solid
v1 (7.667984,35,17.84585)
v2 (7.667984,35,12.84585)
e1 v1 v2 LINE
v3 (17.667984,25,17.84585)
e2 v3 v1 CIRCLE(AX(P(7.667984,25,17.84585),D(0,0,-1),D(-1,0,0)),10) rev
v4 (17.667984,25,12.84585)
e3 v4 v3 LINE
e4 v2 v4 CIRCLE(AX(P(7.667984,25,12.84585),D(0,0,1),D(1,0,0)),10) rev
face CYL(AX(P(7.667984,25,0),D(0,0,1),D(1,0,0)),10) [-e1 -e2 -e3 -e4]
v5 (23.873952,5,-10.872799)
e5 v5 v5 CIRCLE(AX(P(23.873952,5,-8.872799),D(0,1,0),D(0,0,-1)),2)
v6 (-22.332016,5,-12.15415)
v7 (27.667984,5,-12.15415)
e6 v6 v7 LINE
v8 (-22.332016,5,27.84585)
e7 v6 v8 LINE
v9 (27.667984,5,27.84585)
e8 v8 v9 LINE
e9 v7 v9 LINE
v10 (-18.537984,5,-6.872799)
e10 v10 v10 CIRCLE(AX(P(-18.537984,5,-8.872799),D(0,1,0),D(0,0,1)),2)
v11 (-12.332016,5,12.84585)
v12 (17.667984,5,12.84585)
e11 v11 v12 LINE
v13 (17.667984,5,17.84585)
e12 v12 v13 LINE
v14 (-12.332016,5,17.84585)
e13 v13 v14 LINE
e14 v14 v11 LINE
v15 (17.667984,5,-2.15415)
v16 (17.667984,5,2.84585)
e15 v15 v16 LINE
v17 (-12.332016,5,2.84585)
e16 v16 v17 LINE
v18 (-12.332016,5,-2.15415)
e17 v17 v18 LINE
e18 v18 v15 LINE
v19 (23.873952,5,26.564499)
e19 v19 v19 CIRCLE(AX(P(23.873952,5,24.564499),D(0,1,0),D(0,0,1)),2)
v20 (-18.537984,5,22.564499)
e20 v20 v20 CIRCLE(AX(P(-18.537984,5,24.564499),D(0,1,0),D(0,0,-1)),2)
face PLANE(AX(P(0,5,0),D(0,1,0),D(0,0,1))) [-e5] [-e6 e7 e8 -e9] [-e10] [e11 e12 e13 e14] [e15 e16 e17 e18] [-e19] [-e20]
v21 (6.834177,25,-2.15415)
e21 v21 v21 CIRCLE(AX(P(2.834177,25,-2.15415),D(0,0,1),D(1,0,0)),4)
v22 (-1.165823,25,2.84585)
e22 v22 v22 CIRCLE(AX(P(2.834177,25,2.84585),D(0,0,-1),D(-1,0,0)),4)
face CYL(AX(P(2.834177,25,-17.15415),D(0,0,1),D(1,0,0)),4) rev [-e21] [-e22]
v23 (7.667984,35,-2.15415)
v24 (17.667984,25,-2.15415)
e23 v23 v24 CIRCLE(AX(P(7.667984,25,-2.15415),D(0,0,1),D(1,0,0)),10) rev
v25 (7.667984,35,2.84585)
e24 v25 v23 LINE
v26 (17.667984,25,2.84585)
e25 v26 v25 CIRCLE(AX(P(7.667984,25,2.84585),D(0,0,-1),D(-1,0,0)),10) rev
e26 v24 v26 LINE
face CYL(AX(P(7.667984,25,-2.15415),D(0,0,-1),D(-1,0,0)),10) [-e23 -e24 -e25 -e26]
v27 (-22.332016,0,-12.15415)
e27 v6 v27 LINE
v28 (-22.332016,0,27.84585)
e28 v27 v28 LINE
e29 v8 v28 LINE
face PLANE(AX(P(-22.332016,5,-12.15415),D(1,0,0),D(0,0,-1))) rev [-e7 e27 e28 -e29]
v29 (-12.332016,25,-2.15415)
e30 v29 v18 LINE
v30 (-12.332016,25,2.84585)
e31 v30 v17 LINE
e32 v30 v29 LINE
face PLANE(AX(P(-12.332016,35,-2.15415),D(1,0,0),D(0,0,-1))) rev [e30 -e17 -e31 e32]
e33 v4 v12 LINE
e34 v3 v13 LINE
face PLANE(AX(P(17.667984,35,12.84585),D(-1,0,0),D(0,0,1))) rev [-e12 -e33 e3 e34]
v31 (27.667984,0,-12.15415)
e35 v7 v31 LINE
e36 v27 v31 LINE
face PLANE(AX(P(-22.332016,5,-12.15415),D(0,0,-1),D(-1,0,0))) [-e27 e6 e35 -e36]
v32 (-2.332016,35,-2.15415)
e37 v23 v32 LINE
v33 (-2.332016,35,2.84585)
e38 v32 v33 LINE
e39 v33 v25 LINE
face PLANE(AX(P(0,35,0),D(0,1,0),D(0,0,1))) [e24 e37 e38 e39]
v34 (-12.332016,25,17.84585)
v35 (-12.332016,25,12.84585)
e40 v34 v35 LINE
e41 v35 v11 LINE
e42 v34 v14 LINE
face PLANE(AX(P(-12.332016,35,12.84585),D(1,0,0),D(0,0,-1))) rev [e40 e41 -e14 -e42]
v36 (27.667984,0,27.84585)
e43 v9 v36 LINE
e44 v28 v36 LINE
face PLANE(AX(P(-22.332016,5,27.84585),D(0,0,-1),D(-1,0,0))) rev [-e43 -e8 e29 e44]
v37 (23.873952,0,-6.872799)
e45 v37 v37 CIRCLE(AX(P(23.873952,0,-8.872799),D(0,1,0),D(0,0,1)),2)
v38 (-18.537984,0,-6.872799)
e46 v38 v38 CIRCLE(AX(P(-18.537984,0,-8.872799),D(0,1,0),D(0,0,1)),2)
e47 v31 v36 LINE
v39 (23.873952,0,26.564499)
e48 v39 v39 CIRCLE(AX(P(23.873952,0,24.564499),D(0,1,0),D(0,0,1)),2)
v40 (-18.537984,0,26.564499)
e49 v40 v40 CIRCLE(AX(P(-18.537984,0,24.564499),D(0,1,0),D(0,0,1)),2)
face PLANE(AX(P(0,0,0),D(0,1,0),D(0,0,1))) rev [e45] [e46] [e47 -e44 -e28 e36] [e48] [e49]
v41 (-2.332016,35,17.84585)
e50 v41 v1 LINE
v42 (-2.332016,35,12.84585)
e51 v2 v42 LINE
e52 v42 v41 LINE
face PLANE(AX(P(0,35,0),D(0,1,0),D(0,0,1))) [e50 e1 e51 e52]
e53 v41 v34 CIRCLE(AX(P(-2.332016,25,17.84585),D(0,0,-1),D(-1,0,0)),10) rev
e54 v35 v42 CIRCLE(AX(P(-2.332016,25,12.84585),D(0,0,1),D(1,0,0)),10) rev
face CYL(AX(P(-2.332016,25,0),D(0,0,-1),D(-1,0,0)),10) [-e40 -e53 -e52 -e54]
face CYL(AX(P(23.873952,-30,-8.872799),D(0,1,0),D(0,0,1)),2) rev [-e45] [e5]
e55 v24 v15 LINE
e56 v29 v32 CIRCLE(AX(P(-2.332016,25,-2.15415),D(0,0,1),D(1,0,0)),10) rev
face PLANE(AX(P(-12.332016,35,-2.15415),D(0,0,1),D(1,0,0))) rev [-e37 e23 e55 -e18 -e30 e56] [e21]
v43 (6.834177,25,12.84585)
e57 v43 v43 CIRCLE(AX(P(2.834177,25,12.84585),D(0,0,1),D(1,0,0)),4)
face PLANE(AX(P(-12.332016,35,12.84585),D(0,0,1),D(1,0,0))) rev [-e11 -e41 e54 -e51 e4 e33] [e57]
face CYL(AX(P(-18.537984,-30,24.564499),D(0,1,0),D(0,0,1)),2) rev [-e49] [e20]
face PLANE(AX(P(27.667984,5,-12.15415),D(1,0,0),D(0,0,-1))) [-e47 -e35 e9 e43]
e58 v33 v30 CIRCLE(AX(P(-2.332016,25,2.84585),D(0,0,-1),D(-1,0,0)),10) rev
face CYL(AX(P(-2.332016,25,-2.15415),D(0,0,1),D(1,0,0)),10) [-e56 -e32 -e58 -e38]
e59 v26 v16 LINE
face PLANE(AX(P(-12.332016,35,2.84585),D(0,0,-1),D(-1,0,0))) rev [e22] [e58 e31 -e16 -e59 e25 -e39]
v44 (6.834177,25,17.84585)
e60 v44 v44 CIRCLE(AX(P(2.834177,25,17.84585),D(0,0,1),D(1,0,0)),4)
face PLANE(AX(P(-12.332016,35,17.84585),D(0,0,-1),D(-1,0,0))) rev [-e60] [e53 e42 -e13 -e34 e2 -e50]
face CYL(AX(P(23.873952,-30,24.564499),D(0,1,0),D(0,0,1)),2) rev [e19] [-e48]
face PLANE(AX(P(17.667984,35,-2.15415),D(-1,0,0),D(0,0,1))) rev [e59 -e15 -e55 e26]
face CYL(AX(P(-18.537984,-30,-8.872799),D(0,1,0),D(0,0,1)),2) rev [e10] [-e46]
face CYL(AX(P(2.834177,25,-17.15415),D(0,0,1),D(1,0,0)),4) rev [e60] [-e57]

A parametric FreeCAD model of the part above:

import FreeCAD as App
import Part
import Sketcher
Q = App.Units.Quantity


def edges_at(feature, points):
    """Names of the edges that pass closest to the given points."""
    edges = feature.Shape.Edges
    near = lambda p: min(range(len(edges)), key=lambda i: edges[i].distToShape(Part.Vertex(*p))[0])
    return sorted({f"Edge{near(p) + 1}" for p in points})

doc = App.newDocument("Part")
body = doc.addObject("PartDesign::Body", "Body")

# Sketch on XZ plane
sketch1 = body.newObject("Sketcher::SketchObject", "Sketch")
sketch1.AttachmentSupport = (doc.getObject("XZ_Plane"), [""])
sketch1.MapMode = "FlatFace"
sketch1.addGeometry([
    Part.LineSegment(App.Vector(-22, -12, 0), App.Vector(-22, 28, 0)),
    Part.LineSegment(App.Vector(-22, 28, 0), App.Vector(28, 28, 0)),
    Part.LineSegment(App.Vector(28, 28, 0), App.Vector(28, -12, 0)),
    Part.LineSegment(App.Vector(28, -12, 0), App.Vector(-22, -12, 0)),
], False)
sketch1.addConstraint([
    Sketcher.Constraint("Coincident", 0, 2, 1, 1),
    Sketcher.Constraint("Coincident", 1, 2, 2, 1),
    Sketcher.Constraint("Coincident", 2, 2, 3, 1),
    Sketcher.Constraint("Coincident", 3, 2, 0, 1),
    Sketcher.Constraint("Vertical", 0),
    Sketcher.Constraint("Horizontal", 1),
    Sketcher.Constraint("Vertical", 2),
    Sketcher.Constraint("Horizontal", 3),
    Sketcher.Constraint("DistanceX", 1, 1, 1, 2, Q("50 mm")),
    Sketcher.Constraint("DistanceY", 0, 1, 0, 2, Q("40 mm")),
    Sketcher.Constraint("DistanceY", -1, 1, 0, 2, Q("27.84585 mm")),
    Sketcher.Constraint("DistanceX", 0, 2, -1, 1, Q("22.332016 mm")),
])
pad1 = body.newObject("PartDesign::Pad", "Pad")
pad1.Profile = sketch1
pad1.Length = 5
pad1.Reversed = True

# Sketch on XZ plane
sketch2 = body.newObject("Sketcher::SketchObject", "Sketch001")
sketch2.AttachmentSupport = (doc.getObject("XZ_Plane"), [""])
sketch2.MapMode = "FlatFace"
sketch2.addGeometry([
    Part.LineSegment(App.Vector(-12, 13, 0), App.Vector(-12, 18, 0)),  # 0
    Part.LineSegment(App.Vector(-12, 18, 0), App.Vector(18, 18, 0)),  # 1
    Part.LineSegment(App.Vector(18, 18, 0), App.Vector(18, 13, 0)),  # 2
    Part.LineSegment(App.Vector(18, 13, 0), App.Vector(-12, 13, 0)),  # 3
    Part.LineSegment(App.Vector(-12, -2, 0), App.Vector(-12, 3, 0)),  # 4
    Part.LineSegment(App.Vector(-12, 3, 0), App.Vector(18, 3, 0)),  # 5
    Part.LineSegment(App.Vector(18, 3, 0), App.Vector(18, -2, 0)),  # 6
    Part.LineSegment(App.Vector(18, -2, 0), App.Vector(-12, -2, 0)),  # 7
], False)
sketch2.addConstraint([
    Sketcher.Constraint("Coincident", 0, 2, 1, 1),
    Sketcher.Constraint("Coincident", 1, 2, 2, 1),
    Sketcher.Constraint("Coincident", 2, 2, 3, 1),
    Sketcher.Constraint("Coincident", 3, 2, 0, 1),
    Sketcher.Constraint("Coincident", 4, 2, 5, 1),
    Sketcher.Constraint("Coincident", 5, 2, 6, 1),
    Sketcher.Constraint("Coincident", 6, 2, 7, 1),
    Sketcher.Constraint("Coincident", 7, 2, 4, 1),
    Sketcher.Constraint("Vertical", 0),
    Sketcher.Constraint("Horizontal", 1),
    Sketcher.Constraint("Vertical", 2),
    Sketcher.Constraint("Horizontal", 3),
    Sketcher.Constraint("Vertical", 4),
    Sketcher.Constraint("Horizontal", 5),
    Sketcher.Constraint("Vertical", 6),
    Sketcher.Constraint("Horizontal", 7),
    Sketcher.Constraint("Vertical", 3, 2, 4, 2),
    Sketcher.Constraint("Vertical", 2, 2, 5, 2),
    Sketcher.Constraint("Equal", 2, 4),
    Sketcher.Constraint("DistanceX", 1, 1, 1, 2, Q("30 mm")),
    Sketcher.Constraint("DistanceY", 0, 1, 0, 2, Q("5 mm")),
    Sketcher.Constraint("DistanceY", 4, 2, 3, 2, Q("10 mm")),
    Sketcher.Constraint("DistanceY", -1, 1, 0, 2, Q("17.84585 mm")),
    Sketcher.Constraint("DistanceX", 0, 2, -1, 1, Q("12.332016 mm")),
])
pad2 = body.newObject("PartDesign::Pad", "Pad001")
pad2.Profile = sketch2
pad2.Length = 35
pad2.Reversed = True
doc.recompute()

fillet = body.newObject("PartDesign::Fillet", "Fillet")
fillet.Base = (pad2, edges_at(pad2, [(17.668, 35, 15.346)]))
fillet.Radius = 10
doc.recompute()

fillet2 = body.newObject("PartDesign::Fillet", "Fillet001")
fillet2.Base = (fillet, edges_at(fillet, [(-12.332, 35, 15.346)]))
fillet2.Radius = 10
doc.recompute()

fillet3 = body.newObject("PartDesign::Fillet", "Fillet002")
fillet3.Base = (fillet2, edges_at(fillet2, [(-12.332, 35, 0.346)]))
fillet3.Radius = 10
doc.recompute()

fillet4 = body.newObject("PartDesign::Fillet", "Fillet003")
fillet4.Base = (fillet3, edges_at(fillet3, [(17.668, 35, 0.346)]))
fillet4.Radius = 10

# Sketch on XY plane
sketch3 = body.newObject("Sketcher::SketchObject", "Sketch002")
sketch3.AttachmentSupport = (doc.getObject("XY_Plane"), [""])
sketch3.MapMode = "FlatFace"
sketch3.AttachmentOffset = App.Placement(App.Vector(0, 0, 17.84585), App.Rotation())
sketch3.addGeometry(Part.Circle(App.Vector(2.8, 25, 0), App.Vector(0, 0, 1), 4), False)
sketch3.addConstraint([
    Sketcher.Constraint("Diameter", 0, Q("8 mm")),
    Sketcher.Constraint("DistanceY", -1, 1, 0, 3, Q("25 mm")),
    Sketcher.Constraint("DistanceX", -1, 1, 0, 3, Q("2.834177 mm")),
])
pocket1 = body.newObject("PartDesign::Pocket", "Pocket")
pocket1.Profile = sketch3
pocket1.Length = 35

# Sketch on XZ plane
sketch4 = body.newObject("Sketcher::SketchObject", "Sketch003")
sketch4.AttachmentSupport = (doc.getObject("XZ_Plane"), [""])
sketch4.MapMode = "FlatFace"
sketch4.AttachmentOffset = App.Placement(App.Vector(0, 0, -5), App.Rotation())
sketch4.addGeometry(Part.Circle(App.Vector(-18.5, -8.9, 0), App.Vector(0, 0, 1), 2), False)
sketch4.addConstraint([
    Sketcher.Constraint("Diameter", 0, Q("4 mm")),
    Sketcher.Constraint("DistanceY", 0, 3, -1, 1, Q("8.872799 mm")),
    Sketcher.Constraint("DistanceX", 0, 3, -1, 1, Q("18.537984 mm")),
])
pocket2 = body.newObject("PartDesign::Pocket", "Pocket001")
pocket2.Profile = sketch4
pocket2.Length = 35
pocket2.Reversed = True

# Sketch on XZ plane
sketch5 = body.newObject("Sketcher::SketchObject", "Sketch004")
sketch5.AttachmentSupport = (doc.getObject("XZ_Plane"), [""])
sketch5.MapMode = "FlatFace"
sketch5.AttachmentOffset = App.Placement(App.Vector(0, 0, -5), App.Rotation())
sketch5.addGeometry([
    Part.Circle(App.Vector(23.9, 24.6, 0), App.Vector(0, 0, 1), 2),
    Part.Circle(App.Vector(-18.5, 24.6, 0), App.Vector(0, 0, 1), 2),
    Part.Circle(App.Vector(23.9, -8.9, 0), App.Vector(0, 0, 1), 2),
    Part.Circle(App.Vector(-18.5, -8.9, 0), App.Vector(0, 0, 1), 2),
], False)
sketch5.addConstraint([
    Sketcher.Constraint("Equal", 0, 1),
    Sketcher.Constraint("Equal", 1, 2),
    Sketcher.Constraint("Equal", 2, 3),
    Sketcher.Constraint("Horizontal", 0, 3, 1, 3),
    Sketcher.Constraint("Horizontal", 2, 3, 3, 3),
    Sketcher.Constraint("Vertical", 0, 3, 2, 3),
    Sketcher.Constraint("Vertical", 1, 3, 3, 3),
    Sketcher.Constraint("Diameter", 0, Q("4 mm")),
    Sketcher.Constraint("DistanceY", -1, 1, 0, 3, Q("24.564499 mm")),
    Sketcher.Constraint("DistanceY", 2, 3, -1, 1, Q("8.872799 mm")),
    Sketcher.Constraint("DistanceX", -1, 1, 0, 3, Q("23.873952 mm")),
    Sketcher.Constraint("DistanceX", 1, 3, -1, 1, Q("18.537984 mm")),
])
pocket3 = body.newObject("PartDesign::Pocket", "Pocket002")
pocket3.Profile = sketch5
pocket3.Length = 35
pocket3.Reversed = True

doc.recompute()
